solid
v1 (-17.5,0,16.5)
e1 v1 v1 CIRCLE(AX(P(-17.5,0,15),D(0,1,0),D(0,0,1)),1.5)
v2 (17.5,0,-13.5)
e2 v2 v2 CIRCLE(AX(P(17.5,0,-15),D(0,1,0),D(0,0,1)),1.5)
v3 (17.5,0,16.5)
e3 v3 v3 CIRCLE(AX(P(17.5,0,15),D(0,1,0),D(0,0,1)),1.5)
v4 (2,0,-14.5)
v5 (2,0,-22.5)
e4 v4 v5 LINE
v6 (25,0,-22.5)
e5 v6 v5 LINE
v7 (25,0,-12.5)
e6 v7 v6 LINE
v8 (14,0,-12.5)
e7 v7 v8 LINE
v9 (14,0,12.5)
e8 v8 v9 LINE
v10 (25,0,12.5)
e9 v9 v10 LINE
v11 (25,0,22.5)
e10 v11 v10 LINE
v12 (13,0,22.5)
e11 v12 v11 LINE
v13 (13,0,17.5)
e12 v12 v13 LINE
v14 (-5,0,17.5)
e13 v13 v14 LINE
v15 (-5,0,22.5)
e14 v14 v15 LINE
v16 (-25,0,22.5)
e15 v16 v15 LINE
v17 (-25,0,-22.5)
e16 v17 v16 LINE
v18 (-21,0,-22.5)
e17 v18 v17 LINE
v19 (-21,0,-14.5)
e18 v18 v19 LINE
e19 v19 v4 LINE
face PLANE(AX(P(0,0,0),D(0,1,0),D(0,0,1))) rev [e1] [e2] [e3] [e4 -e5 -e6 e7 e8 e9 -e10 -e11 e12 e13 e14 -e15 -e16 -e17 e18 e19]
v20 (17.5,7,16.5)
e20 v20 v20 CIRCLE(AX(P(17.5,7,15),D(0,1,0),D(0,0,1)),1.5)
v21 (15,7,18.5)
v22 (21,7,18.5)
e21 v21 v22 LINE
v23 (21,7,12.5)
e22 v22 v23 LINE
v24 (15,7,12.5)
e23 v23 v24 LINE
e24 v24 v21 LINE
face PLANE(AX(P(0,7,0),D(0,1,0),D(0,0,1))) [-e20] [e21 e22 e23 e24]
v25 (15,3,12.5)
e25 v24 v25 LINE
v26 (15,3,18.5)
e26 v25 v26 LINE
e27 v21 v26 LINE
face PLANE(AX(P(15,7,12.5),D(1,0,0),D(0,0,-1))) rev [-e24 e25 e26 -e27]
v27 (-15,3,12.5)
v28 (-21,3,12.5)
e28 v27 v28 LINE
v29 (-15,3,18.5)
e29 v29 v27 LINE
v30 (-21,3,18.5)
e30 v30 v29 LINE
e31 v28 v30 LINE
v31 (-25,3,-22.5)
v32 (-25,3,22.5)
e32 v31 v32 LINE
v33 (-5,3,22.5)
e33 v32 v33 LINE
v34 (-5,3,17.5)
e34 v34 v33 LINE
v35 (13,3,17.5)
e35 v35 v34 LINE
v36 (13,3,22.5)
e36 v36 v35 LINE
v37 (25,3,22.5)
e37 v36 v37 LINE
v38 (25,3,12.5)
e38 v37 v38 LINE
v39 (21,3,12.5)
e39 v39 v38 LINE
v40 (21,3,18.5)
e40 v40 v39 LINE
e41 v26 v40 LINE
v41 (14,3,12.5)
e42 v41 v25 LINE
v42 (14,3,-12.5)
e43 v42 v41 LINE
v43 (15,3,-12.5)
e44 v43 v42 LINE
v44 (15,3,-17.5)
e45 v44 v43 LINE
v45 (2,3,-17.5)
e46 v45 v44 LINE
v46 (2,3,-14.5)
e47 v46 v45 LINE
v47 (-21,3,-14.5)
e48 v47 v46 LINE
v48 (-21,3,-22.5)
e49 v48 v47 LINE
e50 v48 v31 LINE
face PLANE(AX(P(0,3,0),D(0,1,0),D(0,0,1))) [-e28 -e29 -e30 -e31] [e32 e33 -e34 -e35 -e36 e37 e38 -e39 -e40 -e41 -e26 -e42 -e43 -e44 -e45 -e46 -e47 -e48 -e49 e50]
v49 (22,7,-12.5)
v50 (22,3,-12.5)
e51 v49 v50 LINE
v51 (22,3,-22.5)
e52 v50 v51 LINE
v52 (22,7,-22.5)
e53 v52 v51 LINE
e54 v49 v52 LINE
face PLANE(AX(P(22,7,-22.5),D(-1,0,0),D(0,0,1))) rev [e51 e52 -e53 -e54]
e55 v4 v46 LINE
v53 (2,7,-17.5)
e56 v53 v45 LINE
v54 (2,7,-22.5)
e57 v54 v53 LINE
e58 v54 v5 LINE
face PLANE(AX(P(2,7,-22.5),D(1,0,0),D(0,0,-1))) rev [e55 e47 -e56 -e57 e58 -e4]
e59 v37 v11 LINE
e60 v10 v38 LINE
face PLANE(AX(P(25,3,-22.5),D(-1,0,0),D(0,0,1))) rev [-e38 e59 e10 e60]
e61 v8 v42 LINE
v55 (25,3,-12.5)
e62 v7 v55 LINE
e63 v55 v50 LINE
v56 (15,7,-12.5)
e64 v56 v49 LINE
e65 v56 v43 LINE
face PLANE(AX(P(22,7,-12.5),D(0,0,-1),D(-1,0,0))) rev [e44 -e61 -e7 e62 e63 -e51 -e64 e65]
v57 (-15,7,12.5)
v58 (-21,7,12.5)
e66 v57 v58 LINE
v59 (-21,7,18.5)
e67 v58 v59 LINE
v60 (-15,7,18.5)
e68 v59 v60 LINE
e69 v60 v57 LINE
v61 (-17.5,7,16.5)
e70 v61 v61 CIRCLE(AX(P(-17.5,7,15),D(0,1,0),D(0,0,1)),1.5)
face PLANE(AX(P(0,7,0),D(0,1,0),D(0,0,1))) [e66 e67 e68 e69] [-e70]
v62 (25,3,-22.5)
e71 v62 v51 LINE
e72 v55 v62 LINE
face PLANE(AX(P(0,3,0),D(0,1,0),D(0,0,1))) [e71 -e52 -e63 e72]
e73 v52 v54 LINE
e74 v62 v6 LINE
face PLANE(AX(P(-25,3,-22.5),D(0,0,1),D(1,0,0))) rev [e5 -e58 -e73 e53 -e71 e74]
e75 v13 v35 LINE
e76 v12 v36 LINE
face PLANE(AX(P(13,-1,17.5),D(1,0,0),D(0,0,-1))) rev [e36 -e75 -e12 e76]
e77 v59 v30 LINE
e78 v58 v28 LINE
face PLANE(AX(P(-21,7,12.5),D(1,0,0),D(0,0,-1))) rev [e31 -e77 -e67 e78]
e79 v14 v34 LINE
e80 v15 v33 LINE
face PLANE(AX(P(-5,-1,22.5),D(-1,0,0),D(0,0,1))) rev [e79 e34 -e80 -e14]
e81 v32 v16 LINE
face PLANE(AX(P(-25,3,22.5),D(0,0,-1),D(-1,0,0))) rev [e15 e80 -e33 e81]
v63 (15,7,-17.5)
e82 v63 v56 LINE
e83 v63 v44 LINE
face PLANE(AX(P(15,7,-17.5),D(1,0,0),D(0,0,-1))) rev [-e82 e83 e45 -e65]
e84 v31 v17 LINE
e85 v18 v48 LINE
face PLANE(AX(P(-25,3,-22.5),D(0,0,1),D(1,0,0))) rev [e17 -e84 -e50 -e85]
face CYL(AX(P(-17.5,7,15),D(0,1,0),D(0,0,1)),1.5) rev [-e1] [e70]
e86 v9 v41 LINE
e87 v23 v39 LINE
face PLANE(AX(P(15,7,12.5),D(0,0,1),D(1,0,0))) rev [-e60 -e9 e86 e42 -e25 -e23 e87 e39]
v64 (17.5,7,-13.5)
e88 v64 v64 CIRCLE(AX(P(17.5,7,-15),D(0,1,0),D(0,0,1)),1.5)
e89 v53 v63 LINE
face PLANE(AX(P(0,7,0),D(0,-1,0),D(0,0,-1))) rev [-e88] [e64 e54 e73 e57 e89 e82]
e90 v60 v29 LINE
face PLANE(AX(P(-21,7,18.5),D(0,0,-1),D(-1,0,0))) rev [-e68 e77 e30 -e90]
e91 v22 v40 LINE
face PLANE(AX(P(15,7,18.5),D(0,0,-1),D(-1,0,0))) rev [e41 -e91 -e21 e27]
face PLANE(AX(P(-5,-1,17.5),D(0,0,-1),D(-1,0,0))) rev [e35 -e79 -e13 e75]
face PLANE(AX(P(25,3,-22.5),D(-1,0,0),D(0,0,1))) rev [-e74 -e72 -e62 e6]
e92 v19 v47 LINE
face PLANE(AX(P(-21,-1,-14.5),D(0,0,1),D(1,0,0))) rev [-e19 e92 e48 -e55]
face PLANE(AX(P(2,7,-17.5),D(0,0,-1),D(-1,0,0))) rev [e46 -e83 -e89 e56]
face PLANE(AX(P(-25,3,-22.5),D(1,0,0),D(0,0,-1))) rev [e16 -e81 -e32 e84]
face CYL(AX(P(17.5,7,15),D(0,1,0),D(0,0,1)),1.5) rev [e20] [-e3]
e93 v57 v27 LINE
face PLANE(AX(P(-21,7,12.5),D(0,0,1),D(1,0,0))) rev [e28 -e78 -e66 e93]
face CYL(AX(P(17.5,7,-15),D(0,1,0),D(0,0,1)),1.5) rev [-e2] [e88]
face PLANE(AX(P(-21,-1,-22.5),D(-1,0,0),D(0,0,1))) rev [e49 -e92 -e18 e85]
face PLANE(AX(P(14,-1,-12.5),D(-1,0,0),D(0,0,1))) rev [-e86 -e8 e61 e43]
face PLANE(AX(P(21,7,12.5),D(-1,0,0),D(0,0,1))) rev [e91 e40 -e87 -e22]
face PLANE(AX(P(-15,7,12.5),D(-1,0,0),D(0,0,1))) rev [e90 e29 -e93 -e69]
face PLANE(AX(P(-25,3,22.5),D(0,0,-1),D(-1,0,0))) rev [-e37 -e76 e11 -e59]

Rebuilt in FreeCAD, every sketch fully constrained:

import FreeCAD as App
import Part
import Sketcher
Q = App.Units.Quantity


def add_polygon(sketch, points):
    """Adds a closed chain of lines whose ends are joined by coincident constraints."""
    first, n = sketch.GeometryCount, len(points)
    for a, b in zip(points, points[1:] + points[:1]):
        sketch.addGeometry(Part.LineSegment(App.Vector(*a, 0), App.Vector(*b, 0)), False)
    for i in range(n):
        sketch.addConstraint(Sketcher.Constraint("Coincident", first + i, 2, first + (i + 1) % n, 1))

doc = App.newDocument("Part")
body = doc.addObject("PartDesign::Body", "Body")

# Sketch on XZ plane
sketch1 = body.newObject("Sketcher::SketchObject", "Sketch")
sketch1.AttachmentSupport = (doc.getObject("XZ_Plane"), [""])
sketch1.MapMode = "FlatFace"
add_polygon(sketch1, [(-25, -22), (-25, 22), (25, 22), (25, -22)])  # lines 0-3
sketch1.addConstraint([
    Sketcher.Constraint("Vertical", 0),
    Sketcher.Constraint("Horizontal", 1),
    Sketcher.Constraint("Vertical", 2),
    Sketcher.Constraint("Horizontal", 3),
    Sketcher.Constraint("Symmetric", 0, 2, 2, 2, -1, 1),
    Sketcher.Constraint("DistanceX", 1, 1, 1, 2, Q("50 mm")),
    Sketcher.Constraint("DistanceY", 0, 1, 0, 2, Q("45 mm")),
])
pad1 = body.newObject("PartDesign::Pad", "Pad")
pad1.Profile = sketch1
pad1.Length = 3
pad1.Reversed = True

# Sketch on XZ plane
sketch2 = body.newObject("Sketcher::SketchObject", "Sketch001")
sketch2.AttachmentSupport = (doc.getObject("XZ_Plane"), [""])
sketch2.MapMode = "FlatFace"
sketch2.AttachmentOffset = App.Placement(App.Vector(0, 0, -3), App.Rotation())
add_polygon(sketch2, [(22, -22), (2, -22), (2, -18), (15, -18), (15, -12), (22, -12)])  # lines 0-5
add_polygon(sketch2, [(-21, 12), (-21, 18), (-15, 18), (-15, 12)])  # lines 6-9
add_polygon(sketch2, [(15, 12), (15, 18), (21, 18), (21, 12)])  # lines 10-13
sketch2.addConstraint([
    Sketcher.Constraint("Horizontal", 0),
    Sketcher.Constraint("Vertical", 1),
    Sketcher.Constraint("Horizontal", 2),
    Sketcher.Constraint("Vertical", 3),
    Sketcher.Constraint("Horizontal", 4),
    Sketcher.Constraint("Vertical", 5),
    Sketcher.Constraint("Vertical", 6),
    Sketcher.Constraint("Horizontal", 7),
    Sketcher.Constraint("Vertical", 8),
    Sketcher.Constraint("Horizontal", 9),
    Sketcher.Constraint("Vertical", 10),
    Sketcher.Constraint("Horizontal", 11),
    Sketcher.Constraint("Vertical", 12),
    Sketcher.Constraint("Horizontal", 13),
    Sketcher.Constraint("Symmetric", 3, 2, 8, 2, -1, 1),
    Sketcher.Constraint("Symmetric", 7, 2, 10, 2, -2),
    Sketcher.Constraint("Symmetric", 9, 2, 12, 2, -2),
    Sketcher.Constraint("Equal", 1, 3),
    Sketcher.Constraint("Equal", 13, 6),
    Sketcher.Constraint("DistanceX", 0, 2, 0, 1, Q("20 mm")),
    Sketcher.Constraint("DistanceX", 2, 1, 2, 2, Q("13 mm")),
    Sketcher.Constraint("DistanceX", 7, 1, 7, 2, Q("6 mm")),
    Sketcher.Constraint("DistanceY", 1, 1, 1, 2, Q("5 mm")),
    Sketcher.Constraint("DistanceX", -1, 1, 0, 2, Q("2 mm")),
    Sketcher.Constraint("DistanceY", 1, 2, 6, 2, Q("36 mm")),
])
pad2 = body.newObject("PartDesign::Pad", "Pad001")
pad2.Profile = sketch2
pad2.Length = 4
pad2.Reversed = True

# Sketch on XZ plane
sketch3 = body.newObject("Sketcher::SketchObject", "Sketch002")
sketch3.AttachmentSupport = (doc.getObject("XZ_Plane"), [""])
sketch3.MapMode = "FlatFace"
sketch3.AttachmentOffset = App.Placement(App.Vector(0, 0, -3), App.Rotation())
add_polygon(sketch3, [(-21, -22), (-21, -14), (2, -14), (2, -22)])  # lines 0-3
add_polygon(sketch3, [(14, -12), (14, 12), (25, 12), (25, -12)])  # lines 4-7
add_polygon(sketch3, [(-5, 18), (-5, 22), (13, 22), (13, 18)])  # lines 8-11
sketch3.addConstraint([
    Sketcher.Constraint("Vertical", 0),
    Sketcher.Constraint("Horizontal", 1),
    Sketcher.Constraint("Vertical", 2),
    Sketcher.Constraint("Horizontal", 3),
    Sketcher.Constraint("Vertical", 4),
    Sketcher.Constraint("Horizontal", 5),
    Sketcher.Constraint("Vertical", 6),
    Sketcher.Constraint("Horizontal", 7),
    Sketcher.Constraint("Vertical", 8),
    Sketcher.Constraint("Horizontal", 9),
    Sketcher.Constraint("Vertical", 10),
    Sketcher.Constraint("Horizontal", 11),
    Sketcher.Constraint("DistanceX", 1, 1, 1, 2, Q("23 mm")),
    Sketcher.Constraint("DistanceX", 5, 1, 5, 2, Q("11 mm")),
    Sketcher.Constraint("DistanceX", 9, 1, 9, 2, Q("18 mm")),
    Sketcher.Constraint("DistanceY", 0, 1, 0, 2, Q("8 mm")),
    Sketcher.Constraint("DistanceY", 4, 1, 4, 2, Q("25 mm")),
    Sketcher.Constraint("DistanceY", 8, 1, 8, 2, Q("5 mm")),
    Sketcher.Constraint("DistanceX", 0, 2, -1, 1, Q("21 mm")),
    Sketcher.Constraint("DistanceX", -1, 1, 4, 2, Q("14 mm")),
    Sketcher.Constraint("DistanceX", 8, 2, -1, 1, Q("5 mm")),
    Sketcher.Constraint("DistanceY", 1, 2, 4, 2, Q("27 mm")),
    Sketcher.Constraint("DistanceY", 4, 2, 8, 2, Q("10 mm")),
    Sketcher.Constraint("DistanceY", 0, 2, -1, 1, Q("14.5 mm")),
])
pocket1 = body.newObject("PartDesign::Pocket", "Pocket")
pocket1.Profile = sketch3
pocket1.Length = 4
pocket1.Reversed = True

# Sketch on XZ plane
sketch4 = body.newObject("Sketcher::SketchObject", "Sketch003")
sketch4.AttachmentSupport = (doc.getObject("XZ_Plane"), [""])
sketch4.MapMode = "FlatFace"
sketch4.AttachmentOffset = App.Placement(App.Vector(0, 0, -7), App.Rotation())
sketch4.addGeometry([
    Part.Circle(App.Vector(-17.5, 15, 0), App.Vector(0, 0, 1), 1.5),
    Part.Circle(App.Vector(17.5, 15, 0), App.Vector(0, 0, 1), 1.5),
    Part.Circle(App.Vector(17.5, -15, 0), App.Vector(0, 0, 1), 1.5),
], False)
sketch4.addConstraint([
    Sketcher.Constraint("Equal", 0, 1),
    Sketcher.Constraint("Equal", 1, 2),
    Sketcher.Constraint("Symmetric", 0, 3, 2, 3, -1, 1),
    Sketcher.Constraint("Symmetric", 0, 3, 1, 3, -2),
    Sketcher.Constraint("Diameter", 0, Q("3 mm")),
    Sketcher.Constraint("DistanceY", -1, 1, 0, 3, Q("15 mm")),
    Sketcher.Constraint("DistanceX", 0, 3, 1, 3, Q("35 mm")),
])
doc.recompute()
hole = body.newObject("PartDesign::Hole", "Hole")
hole.Profile = sketch4
hole.ThreadType = "None"
hole.Diameter = 3
hole.DepthType = "ThroughAll"
hole.Reversed = True

doc.recompute()
